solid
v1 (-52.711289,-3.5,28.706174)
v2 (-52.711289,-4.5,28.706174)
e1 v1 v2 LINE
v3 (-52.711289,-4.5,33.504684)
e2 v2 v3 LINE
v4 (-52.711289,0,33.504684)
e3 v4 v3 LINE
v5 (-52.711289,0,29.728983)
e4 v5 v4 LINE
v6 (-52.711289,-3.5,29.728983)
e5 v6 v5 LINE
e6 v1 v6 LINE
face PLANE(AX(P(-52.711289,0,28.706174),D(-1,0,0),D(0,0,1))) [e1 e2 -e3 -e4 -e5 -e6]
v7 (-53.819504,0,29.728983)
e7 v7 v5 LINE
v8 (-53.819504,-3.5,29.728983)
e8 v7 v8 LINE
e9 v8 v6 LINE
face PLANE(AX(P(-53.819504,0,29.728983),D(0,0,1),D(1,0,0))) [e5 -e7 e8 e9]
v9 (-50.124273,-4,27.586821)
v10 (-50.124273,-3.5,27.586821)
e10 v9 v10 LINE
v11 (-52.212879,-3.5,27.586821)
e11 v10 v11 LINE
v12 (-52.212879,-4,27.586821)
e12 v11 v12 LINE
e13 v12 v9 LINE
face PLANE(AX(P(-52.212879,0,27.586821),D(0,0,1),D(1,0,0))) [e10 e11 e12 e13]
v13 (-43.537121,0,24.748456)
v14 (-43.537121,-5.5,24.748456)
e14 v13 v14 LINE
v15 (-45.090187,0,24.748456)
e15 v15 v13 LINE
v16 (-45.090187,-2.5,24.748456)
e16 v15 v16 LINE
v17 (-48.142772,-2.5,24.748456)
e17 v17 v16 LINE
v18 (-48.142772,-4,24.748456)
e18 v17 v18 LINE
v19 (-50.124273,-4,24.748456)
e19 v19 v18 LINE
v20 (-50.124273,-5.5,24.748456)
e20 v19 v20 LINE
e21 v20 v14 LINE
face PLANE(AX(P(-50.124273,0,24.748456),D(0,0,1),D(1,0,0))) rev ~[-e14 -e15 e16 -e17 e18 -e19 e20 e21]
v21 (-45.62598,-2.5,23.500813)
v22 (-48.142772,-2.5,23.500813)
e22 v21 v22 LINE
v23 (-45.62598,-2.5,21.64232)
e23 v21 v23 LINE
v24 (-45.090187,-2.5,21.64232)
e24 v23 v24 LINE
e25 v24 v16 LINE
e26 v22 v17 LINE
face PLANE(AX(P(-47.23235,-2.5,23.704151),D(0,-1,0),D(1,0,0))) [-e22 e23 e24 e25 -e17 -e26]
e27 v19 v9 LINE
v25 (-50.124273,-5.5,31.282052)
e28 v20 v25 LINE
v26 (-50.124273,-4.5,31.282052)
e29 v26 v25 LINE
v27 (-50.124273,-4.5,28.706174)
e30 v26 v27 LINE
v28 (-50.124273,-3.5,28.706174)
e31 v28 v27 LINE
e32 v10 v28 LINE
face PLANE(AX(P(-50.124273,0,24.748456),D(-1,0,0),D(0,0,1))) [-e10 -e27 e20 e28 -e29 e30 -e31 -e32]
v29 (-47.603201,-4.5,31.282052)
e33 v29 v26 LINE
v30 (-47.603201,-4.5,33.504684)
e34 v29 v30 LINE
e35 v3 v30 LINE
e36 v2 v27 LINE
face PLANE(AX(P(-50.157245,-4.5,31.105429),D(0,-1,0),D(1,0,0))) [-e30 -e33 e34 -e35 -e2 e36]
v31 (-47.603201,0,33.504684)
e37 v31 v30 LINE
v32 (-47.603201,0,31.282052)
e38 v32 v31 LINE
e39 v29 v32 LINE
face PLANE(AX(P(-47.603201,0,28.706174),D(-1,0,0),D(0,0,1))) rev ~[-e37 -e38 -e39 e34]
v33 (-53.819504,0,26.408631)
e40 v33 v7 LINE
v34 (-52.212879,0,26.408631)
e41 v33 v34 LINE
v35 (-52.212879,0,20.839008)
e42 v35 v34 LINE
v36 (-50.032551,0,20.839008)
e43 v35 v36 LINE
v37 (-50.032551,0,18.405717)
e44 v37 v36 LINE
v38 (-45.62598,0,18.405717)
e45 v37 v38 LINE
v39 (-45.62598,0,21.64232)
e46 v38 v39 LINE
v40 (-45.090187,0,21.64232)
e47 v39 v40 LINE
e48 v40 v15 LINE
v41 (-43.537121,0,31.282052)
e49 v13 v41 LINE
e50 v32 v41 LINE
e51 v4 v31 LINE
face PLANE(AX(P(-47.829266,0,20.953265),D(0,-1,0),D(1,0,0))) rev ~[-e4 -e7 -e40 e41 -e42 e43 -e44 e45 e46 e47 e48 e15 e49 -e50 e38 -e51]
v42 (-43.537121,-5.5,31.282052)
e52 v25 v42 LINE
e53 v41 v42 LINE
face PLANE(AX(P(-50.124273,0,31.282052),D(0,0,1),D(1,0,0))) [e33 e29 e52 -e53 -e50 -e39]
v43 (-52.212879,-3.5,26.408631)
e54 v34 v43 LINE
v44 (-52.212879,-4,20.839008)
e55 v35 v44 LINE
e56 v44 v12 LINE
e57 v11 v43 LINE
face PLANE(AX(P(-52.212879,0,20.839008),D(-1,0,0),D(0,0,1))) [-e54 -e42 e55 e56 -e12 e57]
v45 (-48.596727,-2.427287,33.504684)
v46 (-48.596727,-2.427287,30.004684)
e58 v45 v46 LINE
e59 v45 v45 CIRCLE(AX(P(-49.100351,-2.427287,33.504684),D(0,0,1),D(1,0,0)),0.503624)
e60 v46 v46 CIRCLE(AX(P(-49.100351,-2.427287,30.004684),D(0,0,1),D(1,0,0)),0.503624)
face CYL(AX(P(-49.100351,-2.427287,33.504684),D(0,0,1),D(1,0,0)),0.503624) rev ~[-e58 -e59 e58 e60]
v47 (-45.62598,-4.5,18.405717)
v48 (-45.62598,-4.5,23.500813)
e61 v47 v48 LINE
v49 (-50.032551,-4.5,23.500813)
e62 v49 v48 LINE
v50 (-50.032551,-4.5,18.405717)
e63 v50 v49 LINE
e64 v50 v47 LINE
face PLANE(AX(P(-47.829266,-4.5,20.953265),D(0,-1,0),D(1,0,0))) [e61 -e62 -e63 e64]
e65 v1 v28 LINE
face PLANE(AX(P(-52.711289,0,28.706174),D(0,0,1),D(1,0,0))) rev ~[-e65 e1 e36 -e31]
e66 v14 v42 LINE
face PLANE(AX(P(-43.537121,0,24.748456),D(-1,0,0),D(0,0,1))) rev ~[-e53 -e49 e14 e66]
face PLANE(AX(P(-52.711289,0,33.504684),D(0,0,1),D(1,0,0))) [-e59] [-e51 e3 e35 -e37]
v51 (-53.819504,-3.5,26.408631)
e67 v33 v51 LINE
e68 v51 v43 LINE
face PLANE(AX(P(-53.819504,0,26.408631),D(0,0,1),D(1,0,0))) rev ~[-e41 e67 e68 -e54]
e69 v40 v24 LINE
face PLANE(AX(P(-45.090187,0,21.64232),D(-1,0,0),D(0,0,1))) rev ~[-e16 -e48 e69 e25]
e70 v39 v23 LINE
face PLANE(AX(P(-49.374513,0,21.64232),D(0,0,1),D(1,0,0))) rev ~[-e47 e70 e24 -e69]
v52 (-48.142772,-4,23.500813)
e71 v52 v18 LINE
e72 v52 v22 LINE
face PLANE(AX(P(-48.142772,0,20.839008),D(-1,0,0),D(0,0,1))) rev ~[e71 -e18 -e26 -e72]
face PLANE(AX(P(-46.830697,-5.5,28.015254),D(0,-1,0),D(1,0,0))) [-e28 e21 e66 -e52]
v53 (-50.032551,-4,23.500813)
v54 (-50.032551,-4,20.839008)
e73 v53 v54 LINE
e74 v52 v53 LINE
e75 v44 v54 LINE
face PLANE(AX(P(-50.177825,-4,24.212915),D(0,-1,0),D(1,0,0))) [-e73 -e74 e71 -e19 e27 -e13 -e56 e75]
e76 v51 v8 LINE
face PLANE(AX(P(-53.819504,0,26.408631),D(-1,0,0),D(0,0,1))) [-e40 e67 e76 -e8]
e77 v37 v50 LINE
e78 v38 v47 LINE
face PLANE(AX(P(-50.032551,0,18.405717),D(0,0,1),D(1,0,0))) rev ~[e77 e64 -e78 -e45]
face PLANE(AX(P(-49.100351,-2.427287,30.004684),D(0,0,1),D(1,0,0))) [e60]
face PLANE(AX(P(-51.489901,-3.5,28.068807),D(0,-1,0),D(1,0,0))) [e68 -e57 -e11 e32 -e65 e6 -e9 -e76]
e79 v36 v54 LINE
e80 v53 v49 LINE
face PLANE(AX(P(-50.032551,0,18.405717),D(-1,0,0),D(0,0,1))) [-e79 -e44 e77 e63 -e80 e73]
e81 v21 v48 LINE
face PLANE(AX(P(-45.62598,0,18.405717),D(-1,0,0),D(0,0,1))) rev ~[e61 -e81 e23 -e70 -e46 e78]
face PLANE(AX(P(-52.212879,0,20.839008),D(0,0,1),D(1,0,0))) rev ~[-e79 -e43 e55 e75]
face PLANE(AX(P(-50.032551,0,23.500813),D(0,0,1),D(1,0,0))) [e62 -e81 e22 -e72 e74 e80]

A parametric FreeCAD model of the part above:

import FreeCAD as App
import Part
import Sketcher

V = App.Vector

doc = App.newDocument("Part")
params = doc.addObject("Spreadsheet::Sheet", "Params")
for row, (alias, value) in enumerate([
    ("pad1_length", "4.5 mm"),
    ("pad2_length", "5.5 mm"),
    ("pad3_length", "3.5 mm"),
    ("pad4_length", "4 mm"),
    ("pad5_length", "2.5 mm"),
    ("pad6_length", "4.5 mm"),
    ("pocket1_length", "3.5 mm"),
], start=1):
    params.set(f"A{row}", alias)
    params.set(f"B{row}", "=" + value)
    params.setAlias(f"B{row}", alias)

body = doc.addObject("PartDesign::Body", "Body")

# Sketch on XZ plane
sketch1 = body.newObject("Sketcher::SketchObject", "Sketch")
sketch1.AttachmentSupport = (doc.getObject("XZ_Plane"), [""])
sketch1.MapMode = "FlatFace"
sketch1.addGeometry(Part.LineSegment(V(-52.7, 33.5, 0), V(-52.7, 28.7, 0)), False)
sketch1.addGeometry(Part.LineSegment(V(-52.7, 28.7, 0), V(-47.6, 28.7, 0)), False)
sketch1.addGeometry(Part.LineSegment(V(-47.6, 28.7, 0), V(-47.6, 33.5, 0)), False)
sketch1.addGeometry(Part.LineSegment(V(-47.6, 33.5, 0), V(-52.7, 33.5, 0)), False)
sketch1.addConstraint(Sketcher.Constraint("Coincident", 0, 2, 1, 1))
sketch1.addConstraint(Sketcher.Constraint("Coincident", 1, 2, 2, 1))
sketch1.addConstraint(Sketcher.Constraint("Coincident", 2, 2, 3, 1))
sketch1.addConstraint(Sketcher.Constraint("Coincident", 3, 2, 0, 1))
sketch1.addConstraint(Sketcher.Constraint("Vertical", 0))
sketch1.addConstraint(Sketcher.Constraint("Horizontal", 1))
sketch1.addConstraint(Sketcher.Constraint("Vertical", 2))
sketch1.addConstraint(Sketcher.Constraint("Horizontal", 3))
sketch1.addConstraint(Sketcher.Constraint("DistanceX", 1, 1, 1, 2, 5.108088))
sketch1.addConstraint(Sketcher.Constraint("DistanceY", 0, 2, 0, 1, 4.79851))
sketch1.addConstraint(Sketcher.Constraint("DistanceX", 1, 2, -1, 1, 47.603201))
sketch1.addConstraint(Sketcher.Constraint("DistanceY", -1, 1, 0, 2, 28.706174))
pad1 = body.newObject("PartDesign::Pad", "Pad")
pad1.Profile = sketch1
pad1.setExpression("Length", "Params.pad1_length")

# Sketch on XZ plane
sketch2 = body.newObject("Sketcher::SketchObject", "Sketch001")
sketch2.AttachmentSupport = (doc.getObject("XZ_Plane"), [""])
sketch2.MapMode = "FlatFace"
sketch2.addGeometry(Part.LineSegment(V(-50, 31, 0), V(-50, 25, 0)), False)
sketch2.addGeometry(Part.LineSegment(V(-50, 25, 0), V(-44, 25, 0)), False)
sketch2.addGeometry(Part.LineSegment(V(-44, 25, 0), V(-44, 31, 0)), False)
sketch2.addGeometry(Part.LineSegment(V(-44, 31, 0), V(-50, 31, 0)), False)
sketch2.addConstraint(Sketcher.Constraint("Coincident", 0, 2, 1, 1))
sketch2.addConstraint(Sketcher.Constraint("Coincident", 1, 2, 2, 1))
sketch2.addConstraint(Sketcher.Constraint("Coincident", 2, 2, 3, 1))
sketch2.addConstraint(Sketcher.Constraint("Coincident", 3, 2, 0, 1))
sketch2.addConstraint(Sketcher.Constraint("Vertical", 0))
sketch2.addConstraint(Sketcher.Constraint("Horizontal", 1))
sketch2.addConstraint(Sketcher.Constraint("Vertical", 2))
sketch2.addConstraint(Sketcher.Constraint("Horizontal", 3))
sketch2.addConstraint(Sketcher.Constraint("DistanceX", 1, 1, 1, 2, 6.587152))
sketch2.addConstraint(Sketcher.Constraint("DistanceY", 0, 2, 0, 1, 6.533596))
sketch2.addConstraint(Sketcher.Constraint("DistanceX", 1, 2, -1, 1, 43.537121))
sketch2.addConstraint(Sketcher.Constraint("DistanceY", -1, 1, 2, 2, 31.282052))
pad2 = body.newObject("PartDesign::Pad", "Pad001")
pad2.Profile = sketch2
pad2.setExpression("Length", "Params.pad2_length")

# Sketch on XZ plane
sketch3 = body.newObject("Sketcher::SketchObject", "Sketch002")
sketch3.AttachmentSupport = (doc.getObject("XZ_Plane"), [""])
sketch3.MapMode = "FlatFace"
sketch3.addGeometry(Part.LineSegment(V(-53.8, 29.7, 0), V(-53.8, 26.4, 0)), False)
sketch3.addGeometry(Part.LineSegment(V(-53.8, 26.4, 0), V(-49.2, 26.4, 0)), False)
sketch3.addGeometry(Part.LineSegment(V(-49.2, 26.4, 0), V(-49.2, 29.7, 0)), False)
sketch3.addGeometry(Part.LineSegment(V(-49.2, 29.7, 0), V(-53.8, 29.7, 0)), False)
sketch3.addConstraint(Sketcher.Constraint("Coincident", 0, 2, 1, 1))
sketch3.addConstraint(Sketcher.Constraint("Coincident", 1, 2, 2, 1))
sketch3.addConstraint(Sketcher.Constraint("Coincident", 2, 2, 3, 1))
sketch3.addConstraint(Sketcher.Constraint("Coincident", 3, 2, 0, 1))
sketch3.addConstraint(Sketcher.Constraint("Vertical", 0))
sketch3.addConstraint(Sketcher.Constraint("Horizontal", 1))
sketch3.addConstraint(Sketcher.Constraint("Vertical", 2))
sketch3.addConstraint(Sketcher.Constraint("Horizontal", 3))
sketch3.addConstraint(Sketcher.Constraint("DistanceY", 0, 2, 0, 1, 3.320352))
sketch3.addConstraint(Sketcher.Constraint("DistanceX", 1, 1, 1, 2, 4.659206))
sketch3.addConstraint(Sketcher.Constraint("DistanceY", -1, 1, 0, 2, 26.408631))
sketch3.addConstraint(Sketcher.Constraint("DistanceX", 0, 2, -1, 1, 53.819504))
pad3 = body.newObject("PartDesign::Pad", "Pad002")
pad3.Profile = sketch3
pad3.setExpression("Length", "Params.pad3_length")

# Sketch on XZ plane
sketch4 = body.newObject("Sketcher::SketchObject", "Sketch003")
sketch4.AttachmentSupport = (doc.getObject("XZ_Plane"), [""])
sketch4.MapMode = "FlatFace"
sketch4.addGeometry(Part.LineSegment(V(-52.2, 27.6, 0), V(-52.2, 20.8, 0)), False)
sketch4.addGeometry(Part.LineSegment(V(-52.2, 20.8, 0), V(-48.1, 20.8, 0)), False)
sketch4.addGeometry(Part.LineSegment(V(-48.1, 20.8, 0), V(-48.1, 27.6, 0)), False)
sketch4.addGeometry(Part.LineSegment(V(-48.1, 27.6, 0), V(-52.2, 27.6, 0)), False)
sketch4.addConstraint(Sketcher.Constraint("Coincident", 0, 2, 1, 1))
sketch4.addConstraint(Sketcher.Constraint("Coincident", 1, 2, 2, 1))
sketch4.addConstraint(Sketcher.Constraint("Coincident", 2, 2, 3, 1))
sketch4.addConstraint(Sketcher.Constraint("Coincident", 3, 2, 0, 1))
sketch4.addConstraint(Sketcher.Constraint("Vertical", 0))
sketch4.addConstraint(Sketcher.Constraint("Horizontal", 1))
sketch4.addConstraint(Sketcher.Constraint("Vertical", 2))
sketch4.addConstraint(Sketcher.Constraint("Horizontal", 3))
sketch4.addConstraint(Sketcher.Constraint("DistanceX", 1, 1, 1, 2, 4.070107))
sketch4.addConstraint(Sketcher.Constraint("DistanceY", 0, 2, 0, 1, 6.747813))
sketch4.addConstraint(Sketcher.Constraint("DistanceX", 0, 2, -1, 1, 52.212879))
sketch4.addConstraint(Sketcher.Constraint("DistanceY", -1, 1, 0, 2, 20.839008))
pad4 = body.newObject("PartDesign::Pad", "Pad003")
pad4.Profile = sketch4
pad4.setExpression("Length", "Params.pad4_length")

# Sketch on XZ plane
sketch5 = body.newObject("Sketcher::SketchObject", "Sketch004")
sketch5.AttachmentSupport = (doc.getObject("XZ_Plane"), [""])
sketch5.MapMode = "FlatFace"
sketch5.addGeometry(Part.LineSegment(V(-49.4, 25.8, 0), V(-49.4, 21.6, 0)), False)
sketch5.addGeometry(Part.LineSegment(V(-49.4, 21.6, 0), V(-45.1, 21.6, 0)), False)
sketch5.addGeometry(Part.LineSegment(V(-45.1, 21.6, 0), V(-45.1, 25.8, 0)), False)
sketch5.addGeometry(Part.LineSegment(V(-45.1, 25.8, 0), V(-49.4, 25.8, 0)), False)
sketch5.addConstraint(Sketcher.Constraint("Coincident", 0, 2, 1, 1))
sketch5.addConstraint(Sketcher.Constraint("Coincident", 1, 2, 2, 1))
sketch5.addConstraint(Sketcher.Constraint("Coincident", 2, 2, 3, 1))
sketch5.addConstraint(Sketcher.Constraint("Coincident", 3, 2, 0, 1))
sketch5.addConstraint(Sketcher.Constraint("Vertical", 0))
sketch5.addConstraint(Sketcher.Constraint("Horizontal", 1))
sketch5.addConstraint(Sketcher.Constraint("Vertical", 2))
sketch5.addConstraint(Sketcher.Constraint("Horizontal", 3))
sketch5.addConstraint(Sketcher.Constraint("DistanceY", 0, 2, 0, 1, 4.123662))
sketch5.addConstraint(Sketcher.Constraint("DistanceX", 1, 1, 1, 2, 4.284326))
sketch5.addConstraint(Sketcher.Constraint("DistanceY", -1, 1, 0, 2, 21.64232))
sketch5.addConstraint(Sketcher.Constraint("DistanceX", 0, 2, -1, 1, 49.374513))
pad5 = body.newObject("PartDesign::Pad", "Pad004")
pad5.Profile = sketch5
pad5.setExpression("Length", "Params.pad5_length")

# Sketch on XZ plane
sketch6 = body.newObject("Sketcher::SketchObject", "Sketch005")
sketch6.AttachmentSupport = (doc.getObject("XZ_Plane"), [""])
sketch6.MapMode = "FlatFace"
sketch6.addGeometry(Part.LineSegment(V(-50, 23.5, 0), V(-50, 18.4, 0)), False)
sketch6.addGeometry(Part.LineSegment(V(-50, 18.4, 0), V(-45.6, 18.4, 0)), False)
sketch6.addGeometry(Part.LineSegment(V(-45.6, 18.4, 0), V(-45.6, 23.5, 0)), False)
sketch6.addGeometry(Part.LineSegment(V(-45.6, 23.5, 0), V(-50, 23.5, 0)), False)
sketch6.addConstraint(Sketcher.Constraint("Coincident", 0, 2, 1, 1))
sketch6.addConstraint(Sketcher.Constraint("Coincident", 1, 2, 2, 1))
sketch6.addConstraint(Sketcher.Constraint("Coincident", 2, 2, 3, 1))
sketch6.addConstraint(Sketcher.Constraint("Coincident", 3, 2, 0, 1))
sketch6.addConstraint(Sketcher.Constraint("Vertical", 0))
sketch6.addConstraint(Sketcher.Constraint("Horizontal", 1))
sketch6.addConstraint(Sketcher.Constraint("Vertical", 2))
sketch6.addConstraint(Sketcher.Constraint("Horizontal", 3))
sketch6.addConstraint(Sketcher.Constraint("DistanceX", 1, 1, 1, 2, 4.406571))
sketch6.addConstraint(Sketcher.Constraint("DistanceY", 0, 2, 0, 1, 5.095096))
sketch6.addConstraint(Sketcher.Constraint("DistanceX", 0, 2, -1, 1, 50.032551))
sketch6.addConstraint(Sketcher.Constraint("DistanceY", -1, 1, 0, 2, 18.405717))
pad6 = body.newObject("PartDesign::Pad", "Pad005")
pad6.Profile = sketch6
pad6.setExpression("Length", "Params.pad6_length")

# Sketch on XY plane
sketch7 = body.newObject("Sketcher::SketchObject", "Sketch006")
sketch7.AttachmentSupport = (doc.getObject("XY_Plane"), [""])
sketch7.MapMode = "FlatFace"
sketch7.AttachmentOffset = App.Placement(V(0, 0, 33.504684), App.Rotation())
sketch7.addGeometry(Part.Circle(V(-49.1, -2.4, 0), V(0, 0, 1), 0.5), False)
sketch7.addConstraint(Sketcher.Constraint("Diameter", 0, 1.007248))
sketch7.addConstraint(Sketcher.Constraint("DistanceX", 0, 3, -1, 1, 49.100351))
sketch7.addConstraint(Sketcher.Constraint("DistanceY", 0, 3, -1, 1, 2.427287))
pocket1 = body.newObject("PartDesign::Pocket", "Pocket")
pocket1.Profile = sketch7
pocket1.setExpression("Length", "Params.pocket1_length")

doc.recompute()
